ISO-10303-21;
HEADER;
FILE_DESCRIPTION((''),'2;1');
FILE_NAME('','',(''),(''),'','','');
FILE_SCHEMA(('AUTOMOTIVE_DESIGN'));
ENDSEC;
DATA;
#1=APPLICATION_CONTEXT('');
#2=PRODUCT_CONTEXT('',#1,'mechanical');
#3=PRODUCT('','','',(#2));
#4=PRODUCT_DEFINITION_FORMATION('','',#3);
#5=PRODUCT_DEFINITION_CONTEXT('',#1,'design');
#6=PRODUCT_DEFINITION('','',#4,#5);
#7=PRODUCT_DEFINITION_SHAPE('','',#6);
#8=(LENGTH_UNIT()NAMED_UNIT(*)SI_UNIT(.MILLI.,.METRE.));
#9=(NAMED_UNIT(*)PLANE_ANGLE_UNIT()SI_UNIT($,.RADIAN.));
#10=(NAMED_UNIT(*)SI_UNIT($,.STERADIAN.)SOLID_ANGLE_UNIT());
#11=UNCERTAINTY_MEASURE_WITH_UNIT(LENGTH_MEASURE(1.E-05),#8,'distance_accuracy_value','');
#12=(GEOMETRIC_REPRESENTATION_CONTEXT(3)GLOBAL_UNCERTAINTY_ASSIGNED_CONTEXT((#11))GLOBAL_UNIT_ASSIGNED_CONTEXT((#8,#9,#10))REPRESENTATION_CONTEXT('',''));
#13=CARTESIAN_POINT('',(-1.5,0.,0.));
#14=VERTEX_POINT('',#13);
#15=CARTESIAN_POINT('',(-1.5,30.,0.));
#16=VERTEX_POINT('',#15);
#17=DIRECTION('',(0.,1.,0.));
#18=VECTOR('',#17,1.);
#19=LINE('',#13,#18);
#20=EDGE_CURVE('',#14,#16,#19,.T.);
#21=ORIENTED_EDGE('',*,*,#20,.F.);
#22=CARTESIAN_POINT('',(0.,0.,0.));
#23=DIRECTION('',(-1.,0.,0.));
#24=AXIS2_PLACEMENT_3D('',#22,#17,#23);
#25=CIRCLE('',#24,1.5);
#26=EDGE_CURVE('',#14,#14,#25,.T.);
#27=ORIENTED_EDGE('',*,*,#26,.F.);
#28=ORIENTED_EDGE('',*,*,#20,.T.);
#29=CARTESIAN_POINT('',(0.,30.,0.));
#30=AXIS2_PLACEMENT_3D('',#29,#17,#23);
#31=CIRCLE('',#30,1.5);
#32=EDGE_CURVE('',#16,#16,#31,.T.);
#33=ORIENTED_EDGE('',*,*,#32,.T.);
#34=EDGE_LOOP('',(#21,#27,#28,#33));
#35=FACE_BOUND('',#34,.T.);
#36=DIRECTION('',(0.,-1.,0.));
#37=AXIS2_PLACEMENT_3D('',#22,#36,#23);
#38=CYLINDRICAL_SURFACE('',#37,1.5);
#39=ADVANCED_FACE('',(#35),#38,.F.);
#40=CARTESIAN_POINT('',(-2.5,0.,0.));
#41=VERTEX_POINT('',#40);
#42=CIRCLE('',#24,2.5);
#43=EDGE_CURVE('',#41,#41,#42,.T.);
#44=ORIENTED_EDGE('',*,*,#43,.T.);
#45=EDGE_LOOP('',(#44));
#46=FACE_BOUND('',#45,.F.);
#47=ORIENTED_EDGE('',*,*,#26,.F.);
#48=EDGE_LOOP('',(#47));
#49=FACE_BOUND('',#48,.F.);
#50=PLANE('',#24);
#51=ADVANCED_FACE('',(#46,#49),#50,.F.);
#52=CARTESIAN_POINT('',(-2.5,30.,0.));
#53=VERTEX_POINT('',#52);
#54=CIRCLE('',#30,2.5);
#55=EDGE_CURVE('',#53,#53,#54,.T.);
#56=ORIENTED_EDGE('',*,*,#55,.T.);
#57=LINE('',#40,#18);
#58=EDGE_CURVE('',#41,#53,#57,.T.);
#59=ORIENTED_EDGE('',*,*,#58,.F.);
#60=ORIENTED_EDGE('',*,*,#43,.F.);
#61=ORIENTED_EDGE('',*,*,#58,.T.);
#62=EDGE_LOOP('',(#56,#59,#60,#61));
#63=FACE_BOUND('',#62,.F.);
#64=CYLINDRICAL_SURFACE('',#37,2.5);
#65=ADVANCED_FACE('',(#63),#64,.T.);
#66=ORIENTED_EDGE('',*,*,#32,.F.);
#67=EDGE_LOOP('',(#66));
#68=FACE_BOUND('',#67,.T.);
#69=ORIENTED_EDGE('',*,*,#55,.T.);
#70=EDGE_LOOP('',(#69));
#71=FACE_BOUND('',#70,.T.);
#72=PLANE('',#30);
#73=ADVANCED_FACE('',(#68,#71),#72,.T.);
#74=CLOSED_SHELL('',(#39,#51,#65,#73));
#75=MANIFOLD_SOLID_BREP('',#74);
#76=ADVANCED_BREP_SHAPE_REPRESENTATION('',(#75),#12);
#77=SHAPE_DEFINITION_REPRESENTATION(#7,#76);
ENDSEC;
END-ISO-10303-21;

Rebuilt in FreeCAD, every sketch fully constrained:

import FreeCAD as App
import Part
import Sketcher
Q = App.Units.Quantity

doc = App.newDocument("Part")
body = doc.addObject("PartDesign::Body", "Body")

# Sketch on XZ plane
sketch1 = doc.addObject("Sketcher::SketchObject", "Sketch")
body.addObject(sketch1)
sketch1.AttachmentSupport = (doc.XZ_Plane, [""])
sketch1.MapMode = "FlatFace"
sketch1.addGeometry([
    Part.Circle(App.Vector(0, 0, 0), App.Vector(0, 0, 1), 2.5),
    Part.Circle(App.Vector(0, 0, 0), App.Vector(0, 0, 1), 1.5),
], False)
sketch1.addConstraint([
    Sketcher.Constraint("Coincident", 0, 3, -1, 1),
    Sketcher.Constraint("Coincident", 1, 3, -1, 1),
    Sketcher.Constraint("Diameter", 0, Q("5 mm")),
    Sketcher.Constraint("Diameter", 1, Q("3 mm")),
])
pad1 = doc.addObject("PartDesign::Pad", "Pad")
body.addObject(pad1)
pad1.Profile = sketch1
pad1.Length = 30
pad1.Reversed = True

doc.recompute()
